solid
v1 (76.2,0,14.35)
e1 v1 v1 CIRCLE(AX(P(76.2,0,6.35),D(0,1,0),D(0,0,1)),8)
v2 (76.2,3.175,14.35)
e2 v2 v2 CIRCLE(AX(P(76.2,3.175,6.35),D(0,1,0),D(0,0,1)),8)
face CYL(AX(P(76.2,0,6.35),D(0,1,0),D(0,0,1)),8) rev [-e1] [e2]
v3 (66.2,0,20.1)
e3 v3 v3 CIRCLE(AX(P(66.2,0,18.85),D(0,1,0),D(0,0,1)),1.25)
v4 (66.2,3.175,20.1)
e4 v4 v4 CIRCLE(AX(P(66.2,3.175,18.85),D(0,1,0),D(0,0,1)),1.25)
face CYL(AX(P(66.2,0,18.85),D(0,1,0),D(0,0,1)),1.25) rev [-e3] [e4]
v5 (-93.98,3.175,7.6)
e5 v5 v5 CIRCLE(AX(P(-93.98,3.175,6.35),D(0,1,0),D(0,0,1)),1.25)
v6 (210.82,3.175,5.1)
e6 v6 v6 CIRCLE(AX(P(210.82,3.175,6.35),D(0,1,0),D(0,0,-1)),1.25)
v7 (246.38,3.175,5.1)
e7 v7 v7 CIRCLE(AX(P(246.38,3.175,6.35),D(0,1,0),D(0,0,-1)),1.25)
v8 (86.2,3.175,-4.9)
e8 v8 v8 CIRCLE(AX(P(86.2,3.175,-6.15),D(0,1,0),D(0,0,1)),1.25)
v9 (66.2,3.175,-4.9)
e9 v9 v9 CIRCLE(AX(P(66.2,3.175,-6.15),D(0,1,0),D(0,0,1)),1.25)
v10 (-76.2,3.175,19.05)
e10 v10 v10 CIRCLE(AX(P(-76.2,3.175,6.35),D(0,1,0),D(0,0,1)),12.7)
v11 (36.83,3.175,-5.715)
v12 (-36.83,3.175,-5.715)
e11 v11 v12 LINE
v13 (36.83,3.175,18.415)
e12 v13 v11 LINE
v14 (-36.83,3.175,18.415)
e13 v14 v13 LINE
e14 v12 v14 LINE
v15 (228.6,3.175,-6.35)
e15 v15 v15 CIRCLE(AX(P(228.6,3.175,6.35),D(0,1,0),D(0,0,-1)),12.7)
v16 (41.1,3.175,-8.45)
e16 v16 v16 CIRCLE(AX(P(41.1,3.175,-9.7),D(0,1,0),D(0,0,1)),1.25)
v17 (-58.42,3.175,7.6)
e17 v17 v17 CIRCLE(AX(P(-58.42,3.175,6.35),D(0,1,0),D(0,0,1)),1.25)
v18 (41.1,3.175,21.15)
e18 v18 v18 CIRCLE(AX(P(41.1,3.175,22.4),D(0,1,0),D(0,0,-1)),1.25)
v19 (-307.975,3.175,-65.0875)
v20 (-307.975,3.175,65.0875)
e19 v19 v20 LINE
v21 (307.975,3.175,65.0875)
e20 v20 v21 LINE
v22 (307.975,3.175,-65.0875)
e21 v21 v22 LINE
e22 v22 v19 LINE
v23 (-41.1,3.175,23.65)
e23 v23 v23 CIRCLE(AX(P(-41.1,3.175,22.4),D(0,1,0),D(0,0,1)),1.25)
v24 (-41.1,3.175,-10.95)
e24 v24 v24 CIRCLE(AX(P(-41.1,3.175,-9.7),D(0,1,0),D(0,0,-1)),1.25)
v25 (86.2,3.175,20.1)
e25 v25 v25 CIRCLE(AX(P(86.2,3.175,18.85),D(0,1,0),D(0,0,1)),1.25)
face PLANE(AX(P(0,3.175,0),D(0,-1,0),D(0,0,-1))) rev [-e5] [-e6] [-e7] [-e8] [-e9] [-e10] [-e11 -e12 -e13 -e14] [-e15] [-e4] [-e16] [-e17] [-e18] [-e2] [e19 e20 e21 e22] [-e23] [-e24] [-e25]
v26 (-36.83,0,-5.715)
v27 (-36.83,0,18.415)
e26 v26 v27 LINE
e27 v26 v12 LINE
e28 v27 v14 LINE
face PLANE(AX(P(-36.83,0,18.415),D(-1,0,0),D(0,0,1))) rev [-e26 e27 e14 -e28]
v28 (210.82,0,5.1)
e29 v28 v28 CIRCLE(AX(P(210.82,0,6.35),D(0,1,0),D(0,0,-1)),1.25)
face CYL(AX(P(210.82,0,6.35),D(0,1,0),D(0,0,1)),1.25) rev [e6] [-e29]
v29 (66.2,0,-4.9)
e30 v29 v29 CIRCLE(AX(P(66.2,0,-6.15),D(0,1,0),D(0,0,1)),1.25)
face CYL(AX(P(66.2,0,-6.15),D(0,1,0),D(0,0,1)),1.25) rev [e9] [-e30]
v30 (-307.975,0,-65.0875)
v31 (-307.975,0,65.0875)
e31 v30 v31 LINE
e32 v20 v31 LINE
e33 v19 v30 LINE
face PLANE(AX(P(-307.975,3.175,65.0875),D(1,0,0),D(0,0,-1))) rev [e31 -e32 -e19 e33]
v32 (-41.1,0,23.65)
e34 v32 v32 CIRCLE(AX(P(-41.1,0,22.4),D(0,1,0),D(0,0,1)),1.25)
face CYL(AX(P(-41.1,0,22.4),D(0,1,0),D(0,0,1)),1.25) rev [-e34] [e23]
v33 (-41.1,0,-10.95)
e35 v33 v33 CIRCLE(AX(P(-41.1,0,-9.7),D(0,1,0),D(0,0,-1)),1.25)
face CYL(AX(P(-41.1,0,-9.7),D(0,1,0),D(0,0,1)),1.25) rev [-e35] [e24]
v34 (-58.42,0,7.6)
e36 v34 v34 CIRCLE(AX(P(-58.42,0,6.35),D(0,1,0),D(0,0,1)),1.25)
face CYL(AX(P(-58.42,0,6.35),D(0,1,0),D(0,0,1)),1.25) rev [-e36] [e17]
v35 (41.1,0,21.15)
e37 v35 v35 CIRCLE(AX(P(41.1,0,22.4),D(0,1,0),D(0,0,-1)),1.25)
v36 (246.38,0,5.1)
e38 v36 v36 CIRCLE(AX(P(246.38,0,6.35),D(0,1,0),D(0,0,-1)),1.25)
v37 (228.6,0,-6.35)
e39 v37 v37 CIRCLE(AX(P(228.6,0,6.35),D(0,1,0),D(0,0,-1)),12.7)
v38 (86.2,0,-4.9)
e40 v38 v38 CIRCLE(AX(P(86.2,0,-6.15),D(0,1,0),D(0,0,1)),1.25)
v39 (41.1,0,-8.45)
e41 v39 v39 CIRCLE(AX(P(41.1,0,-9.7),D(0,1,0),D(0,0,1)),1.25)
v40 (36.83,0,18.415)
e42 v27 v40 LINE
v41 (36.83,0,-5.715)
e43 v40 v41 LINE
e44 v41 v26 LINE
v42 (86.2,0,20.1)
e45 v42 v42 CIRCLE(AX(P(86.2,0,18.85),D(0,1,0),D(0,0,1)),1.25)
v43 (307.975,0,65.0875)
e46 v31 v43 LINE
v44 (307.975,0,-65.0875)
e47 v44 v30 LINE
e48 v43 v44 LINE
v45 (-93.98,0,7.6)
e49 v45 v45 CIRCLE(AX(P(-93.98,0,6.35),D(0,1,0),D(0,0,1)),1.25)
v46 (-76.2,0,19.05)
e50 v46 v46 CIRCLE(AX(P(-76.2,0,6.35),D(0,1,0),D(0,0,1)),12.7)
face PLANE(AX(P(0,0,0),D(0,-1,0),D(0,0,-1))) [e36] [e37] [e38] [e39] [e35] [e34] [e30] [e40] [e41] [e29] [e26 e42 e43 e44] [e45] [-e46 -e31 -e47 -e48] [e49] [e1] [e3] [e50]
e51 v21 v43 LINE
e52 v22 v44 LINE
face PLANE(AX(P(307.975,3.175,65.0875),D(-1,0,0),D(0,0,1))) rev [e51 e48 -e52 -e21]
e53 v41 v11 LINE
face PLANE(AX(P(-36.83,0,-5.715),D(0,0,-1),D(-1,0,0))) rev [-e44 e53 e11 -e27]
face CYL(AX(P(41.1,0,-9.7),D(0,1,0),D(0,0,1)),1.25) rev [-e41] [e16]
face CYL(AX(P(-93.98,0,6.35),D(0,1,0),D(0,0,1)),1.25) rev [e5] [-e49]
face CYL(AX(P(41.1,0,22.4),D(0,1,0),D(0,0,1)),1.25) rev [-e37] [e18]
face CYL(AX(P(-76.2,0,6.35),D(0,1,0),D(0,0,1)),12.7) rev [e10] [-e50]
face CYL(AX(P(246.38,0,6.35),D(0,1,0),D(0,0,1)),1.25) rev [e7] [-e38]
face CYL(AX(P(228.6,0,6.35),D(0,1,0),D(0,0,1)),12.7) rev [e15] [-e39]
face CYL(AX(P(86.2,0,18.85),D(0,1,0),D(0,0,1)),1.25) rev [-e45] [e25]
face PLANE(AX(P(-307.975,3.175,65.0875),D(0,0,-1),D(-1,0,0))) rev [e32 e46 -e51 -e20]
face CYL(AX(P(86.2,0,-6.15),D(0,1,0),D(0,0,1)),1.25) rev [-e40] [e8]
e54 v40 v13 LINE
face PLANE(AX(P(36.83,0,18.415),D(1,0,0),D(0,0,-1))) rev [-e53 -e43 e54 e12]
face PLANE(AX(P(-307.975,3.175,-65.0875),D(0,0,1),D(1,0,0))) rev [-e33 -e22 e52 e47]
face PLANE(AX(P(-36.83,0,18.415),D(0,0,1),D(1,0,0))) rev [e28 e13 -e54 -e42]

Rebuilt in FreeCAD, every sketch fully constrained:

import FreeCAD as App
import Part
import Sketcher
from FreeCAD import Vector
Q = App.Units.Quantity


def add_polygon(sketch, points):
    """Adds a closed chain of lines whose ends are joined by coincident constraints."""
    first, n = sketch.GeometryCount, len(points)
    for a, b in zip(points, points[1:] + points[:1]):
        sketch.addGeometry(Part.LineSegment(App.Vector(*a, 0), App.Vector(*b, 0)), False)
    for i in range(n):
        sketch.addConstraint(Sketcher.Constraint("Coincident", first + i, 2, first + (i + 1) % n, 1))

doc = App.newDocument("Part")
params = doc.addObject("Spreadsheet::Sheet", "Params")
for row, (alias, value) in enumerate([
    ("sketch1_width", "24.25 in"),
    ("sketch1_height", "5.125 in"),
    ("pad1_length", "0.125 in"),
    ("sketch2_diameter", "1 in"),
    ("sketch2_width", "2.9 in"),
    ("sketch2_height", "0.95 in"),
], start=1):
    params.set(f"A{row}", alias)
    params.set(f"B{row}", "=" + value)
    params.setAlias(f"B{row}", alias)

body = doc.addObject("PartDesign::Body", "Body")

# Sketch on XZ plane
sketch1 = body.newObject("Sketcher::SketchObject", "Sketch")
sketch1.AttachmentSupport = (doc.getObject("XZ_Plane"), [""])
sketch1.MapMode = "FlatFace"
add_polygon(sketch1, [(-308, -65), (-308, 65), (308, 65), (308, -65)])  # lines 0-3
sketch1.addConstraint([
    Sketcher.Constraint("Vertical", 0),
    Sketcher.Constraint("Horizontal", 1),
    Sketcher.Constraint("Vertical", 2),
    Sketcher.Constraint("Horizontal", 3),
    Sketcher.Constraint("Symmetric", 0, 2, 2, 2, -1, 1),
    Sketcher.Constraint("DistanceX", 1, 1, 1, 2, Q("24.25 in")),
    Sketcher.Constraint("DistanceY", 0, 1, 0, 2, Q("5.125 in")),
])
sketch1.setExpression("Constraints[9]", "Params.sketch1_width")
sketch1.setExpression("Constraints[10]", "Params.sketch1_height")
pad1 = body.newObject("PartDesign::Pad", "Pad")
pad1.Profile = sketch1
pad1.setExpression("Length", "Params.pad1_length")
pad1.Reversed = True

# Sketch on XZ plane
sketch2 = body.newObject("Sketcher::SketchObject", "Sketch001")
sketch2.AttachmentSupport = (doc.getObject("XZ_Plane"), [""])
sketch2.MapMode = "FlatFace"
sketch2.AttachmentOffset = App.Placement(Vector(0, 0, -0.125 * 25.4), App.Rotation())
sketch2.addGeometry(Part.Circle(Vector(41.1, -9.7, 0), Vector(0, 0, 1), 1.2), False)  # 0
sketch2.addGeometry(Part.Circle(Vector(41.1, 22.4, 0), Vector(0, 0, 1), 1.2), False)  # 1
sketch2.addGeometry(Part.Circle(Vector(-41.1, 22.4, 0), Vector(0, 0, 1), 1.2), False)  # 2
sketch2.addGeometry(Part.Circle(Vector(-41.1, -9.7, 0), Vector(0, 0, 1), 1.2), False)  # 3
sketch2.addGeometry(Part.Circle(Vector(-76.2, 6.3, 0), Vector(0, 0, 1), 12.7), False)  # 4
sketch2.addGeometry(Part.Circle(Vector(-94, 6.3, 0), Vector(0, 0, 1), 1.2), False)  # 5
sketch2.addGeometry(Part.Circle(Vector(-58.4, 6.3, 0), Vector(0, 0, 1), 1.2), False)  # 6
sketch2.addGeometry(Part.Circle(Vector(86.2, -6.2, 0), Vector(0, 0, 1), 1.2), False)  # 7
sketch2.addGeometry(Part.Circle(Vector(86.2, 18.9, 0), Vector(0, 0, 1), 1.2), False)  # 8
sketch2.addGeometry(Part.Circle(Vector(66.2, 18.9, 0), Vector(0, 0, 1), 1.2), False)  # 9
sketch2.addGeometry(Part.Circle(Vector(66.2, -6.2, 0), Vector(0, 0, 1), 1.2), False)  # 10
sketch2.addGeometry(Part.Circle(Vector(76.2, 6.3, 0), Vector(0, 0, 1), 8), False)  # 11
sketch2.addGeometry(Part.Circle(Vector(246.4, 6.3, 0), Vector(0, 0, 1), 1.2), False)  # 12
sketch2.addGeometry(Part.Circle(Vector(210.8, 6.3, 0), Vector(0, 0, 1), 1.2), False)  # 13
sketch2.addGeometry(Part.Circle(Vector(228.6, 6.3, 0), Vector(0, 0, 1), 12.7), False)  # 14
add_polygon(sketch2, [(-36.8, -5.7), (-36.8, 18.4), (36.8, 18.4), (36.8, -5.7)])  # lines 15-18
sketch2.addConstraint([
    Sketcher.Constraint("Vertical", 15),
    Sketcher.Constraint("Horizontal", 16),
    Sketcher.Constraint("Vertical", 17),
    Sketcher.Constraint("Horizontal", 18),
    Sketcher.Constraint("Equal", 0, 1),
    Sketcher.Constraint("Equal", 1, 2),
    Sketcher.Constraint("Equal", 2, 3),
    Sketcher.Constraint("Equal", 3, 5),
    Sketcher.Constraint("Equal", 5, 6),
    Sketcher.Constraint("Equal", 6, 7),
    Sketcher.Constraint("Equal", 7, 8),
    Sketcher.Constraint("Equal", 8, 9),
    Sketcher.Constraint("Equal", 9, 10),
    Sketcher.Constraint("Equal", 10, 12),
    Sketcher.Constraint("Equal", 12, 13),
    Sketcher.Constraint("Equal", 4, 14),
    Sketcher.Constraint("Symmetric", 1, 3, 2, 3, -2),
    Sketcher.Constraint("Symmetric", 0, 3, 3, 3, -2),
    Sketcher.Constraint("Symmetric", 4, 3, 11, 3, -2),
    Sketcher.Constraint("Horizontal", 4, 3, 5, 3),
    Sketcher.Constraint("Horizontal", 5, 3, 6, 3),
    Sketcher.Constraint("Horizontal", 8, 3, 9, 3),
    Sketcher.Constraint("Horizontal", 7, 3, 10, 3),
    Sketcher.Constraint("Horizontal", 11, 3, 12, 3),
    Sketcher.Constraint("Horizontal", 12, 3, 13, 3),
    Sketcher.Constraint("Horizontal", 13, 3, 14, 3),
    Sketcher.Constraint("Vertical", 0, 3, 1, 3),
    Sketcher.Constraint("Vertical", 7, 3, 8, 3),
    Sketcher.Constraint("Vertical", 9, 3, 10, 3),
    Sketcher.Constraint("Diameter", 4, Q("1 in")),
    Sketcher.Constraint("DistanceX", 16, 1, 16, 2, Q("2.9 in")),
    Sketcher.Constraint("DistanceX", 4, 3, -1, 1, Q("3 in")),
    Sketcher.Constraint("DistanceX", -1, 1, 14, 3, Q("9 in")),
    Sketcher.Constraint("DistanceY", 15, 1, 15, 2, Q("0.95 in")),
    Sketcher.Constraint("DistanceX", 5, 3, -1, 1, Q("3.7 in")),
    Sketcher.Constraint("DistanceX", 6, 3, -1, 1, Q("2.3 in")),
    Sketcher.Constraint("DistanceX", -1, 1, 12, 3, Q("9.7 in")),
    Sketcher.Constraint("DistanceX", -1, 1, 13, 3, Q("8.3 in")),
    Sketcher.Constraint("Diameter", 0, 2.5),
    Sketcher.Constraint("Diameter", 11, 16.0),
    Sketcher.Constraint("DistanceY", -1, 1, 4, 3, Q("0.25 in")),
    Sketcher.Constraint("DistanceX", 15, 2, -1, 1, Q("1.45 in")),
    Sketcher.Constraint("DistanceY", -1, 1, 15, 2, Q("0.725 in")),
    Sketcher.Constraint("DistanceX", -1, 1, 0, 3, 41.1),
    Sketcher.Constraint("DistanceY", 0, 3, -1, 1, 9.7),
    Sketcher.Constraint("DistanceY", -1, 1, 1, 3, 22.4),
    Sketcher.Constraint("DistanceX", -1, 1, 7, 3, 86.2),
    Sketcher.Constraint("DistanceY", 7, 3, -1, 1, 6.15),
    Sketcher.Constraint("DistanceY", -1, 1, 8, 3, 18.85),
    Sketcher.Constraint("DistanceX", -1, 1, 9, 3, 66.2),
])
sketch2.setExpression("Constraints[33]", "Params.sketch2_diameter")
sketch2.setExpression("Constraints[34]", "Params.sketch2_width")
sketch2.setExpression("Constraints[37]", "Params.sketch2_height")
pocket1 = body.newObject("PartDesign::Pocket", "Pocket")
pocket1.Profile = sketch2
pocket1.Type = "ThroughAll"
pocket1.Reversed = True

doc.recompute()
